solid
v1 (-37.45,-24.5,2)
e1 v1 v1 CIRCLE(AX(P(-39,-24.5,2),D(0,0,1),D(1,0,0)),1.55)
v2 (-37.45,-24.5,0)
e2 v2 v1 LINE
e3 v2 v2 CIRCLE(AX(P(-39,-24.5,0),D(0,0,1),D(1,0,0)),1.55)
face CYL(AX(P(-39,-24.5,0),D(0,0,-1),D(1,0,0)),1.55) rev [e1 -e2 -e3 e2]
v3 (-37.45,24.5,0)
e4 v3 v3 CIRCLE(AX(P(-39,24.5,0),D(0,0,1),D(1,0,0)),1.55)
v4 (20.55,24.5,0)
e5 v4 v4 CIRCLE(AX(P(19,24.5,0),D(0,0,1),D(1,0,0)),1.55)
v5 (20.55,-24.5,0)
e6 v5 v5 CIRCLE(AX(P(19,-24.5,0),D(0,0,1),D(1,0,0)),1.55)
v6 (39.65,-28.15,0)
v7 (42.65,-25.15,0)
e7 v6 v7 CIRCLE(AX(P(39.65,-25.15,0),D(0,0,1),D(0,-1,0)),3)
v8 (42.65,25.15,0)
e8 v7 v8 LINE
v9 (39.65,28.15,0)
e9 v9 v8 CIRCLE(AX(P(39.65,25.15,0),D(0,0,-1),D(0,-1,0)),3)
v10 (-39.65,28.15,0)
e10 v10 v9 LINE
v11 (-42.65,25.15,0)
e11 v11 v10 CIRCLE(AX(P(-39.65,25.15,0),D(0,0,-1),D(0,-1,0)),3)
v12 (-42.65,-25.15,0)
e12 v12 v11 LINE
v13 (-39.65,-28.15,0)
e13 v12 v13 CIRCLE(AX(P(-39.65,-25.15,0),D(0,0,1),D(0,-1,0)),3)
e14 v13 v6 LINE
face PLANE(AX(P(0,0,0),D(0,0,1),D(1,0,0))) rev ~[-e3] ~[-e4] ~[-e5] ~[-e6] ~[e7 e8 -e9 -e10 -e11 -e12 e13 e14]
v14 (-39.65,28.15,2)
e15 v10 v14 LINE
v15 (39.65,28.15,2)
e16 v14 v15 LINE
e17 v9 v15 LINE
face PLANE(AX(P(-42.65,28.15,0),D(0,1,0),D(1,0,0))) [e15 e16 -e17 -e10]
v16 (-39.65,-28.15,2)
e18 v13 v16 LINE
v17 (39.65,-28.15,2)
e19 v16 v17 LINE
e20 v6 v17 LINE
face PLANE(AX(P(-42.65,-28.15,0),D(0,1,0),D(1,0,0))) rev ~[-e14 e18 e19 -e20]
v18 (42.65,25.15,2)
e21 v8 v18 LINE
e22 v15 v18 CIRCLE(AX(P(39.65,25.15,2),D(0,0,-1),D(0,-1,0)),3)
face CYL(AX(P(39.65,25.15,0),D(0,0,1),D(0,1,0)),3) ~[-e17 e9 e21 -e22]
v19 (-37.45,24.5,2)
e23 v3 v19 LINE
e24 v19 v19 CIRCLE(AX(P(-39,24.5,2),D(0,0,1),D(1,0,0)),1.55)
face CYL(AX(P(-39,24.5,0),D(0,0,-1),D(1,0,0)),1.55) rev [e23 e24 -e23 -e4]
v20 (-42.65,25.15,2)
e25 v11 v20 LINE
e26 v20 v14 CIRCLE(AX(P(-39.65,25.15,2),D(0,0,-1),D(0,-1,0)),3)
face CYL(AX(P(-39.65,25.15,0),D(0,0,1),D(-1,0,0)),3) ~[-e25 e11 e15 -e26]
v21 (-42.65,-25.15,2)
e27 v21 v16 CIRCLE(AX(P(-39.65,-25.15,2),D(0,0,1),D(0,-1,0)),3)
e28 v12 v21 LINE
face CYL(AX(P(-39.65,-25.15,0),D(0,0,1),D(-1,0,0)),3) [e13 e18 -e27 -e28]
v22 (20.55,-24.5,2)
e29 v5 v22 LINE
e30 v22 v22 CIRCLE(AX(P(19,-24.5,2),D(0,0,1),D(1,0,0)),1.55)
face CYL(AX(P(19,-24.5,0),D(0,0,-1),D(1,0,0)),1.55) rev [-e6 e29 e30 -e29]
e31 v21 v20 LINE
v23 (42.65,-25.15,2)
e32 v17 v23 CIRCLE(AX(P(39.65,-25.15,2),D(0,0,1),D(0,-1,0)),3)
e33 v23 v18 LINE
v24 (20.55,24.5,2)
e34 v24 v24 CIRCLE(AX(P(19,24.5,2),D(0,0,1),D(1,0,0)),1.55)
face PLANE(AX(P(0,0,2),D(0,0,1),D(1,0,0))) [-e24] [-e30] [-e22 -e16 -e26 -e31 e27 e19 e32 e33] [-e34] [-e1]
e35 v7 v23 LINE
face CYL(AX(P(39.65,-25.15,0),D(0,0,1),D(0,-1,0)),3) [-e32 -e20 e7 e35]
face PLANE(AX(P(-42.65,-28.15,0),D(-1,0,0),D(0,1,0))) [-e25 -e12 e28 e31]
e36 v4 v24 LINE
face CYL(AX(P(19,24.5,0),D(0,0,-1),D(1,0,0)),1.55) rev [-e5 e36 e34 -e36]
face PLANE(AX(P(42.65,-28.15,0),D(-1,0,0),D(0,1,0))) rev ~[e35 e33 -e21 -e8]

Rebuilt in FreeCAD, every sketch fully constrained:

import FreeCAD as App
import Part
import Sketcher

V = App.Vector
Q = App.Units.Quantity


def edges_at(feature, points):
    """Names of the edges that pass closest to the given points."""
    edges = feature.Shape.Edges
    near = lambda p: min(range(len(edges)), key=lambda i: edges[i].distToShape(Part.Vertex(*p))[0])
    return sorted({f"Edge{near(p) + 1}" for p in points})


def add_polygon(sketch, points):
    """Adds a closed chain of lines whose ends are joined by coincident constraints."""
    first, n = sketch.GeometryCount, len(points)
    for a, b in zip(points, points[1:] + points[:1]):
        sketch.addGeometry(Part.LineSegment(App.Vector(*a, 0), App.Vector(*b, 0)), False)
    for i in range(n):
        sketch.addConstraint(Sketcher.Constraint("Coincident", first + i, 2, first + (i + 1) % n, 1))

doc = App.newDocument("Part")
body = doc.addObject("PartDesign::Body", "Body")

# Sketch on XY plane
sketch1 = body.newObject("Sketcher::SketchObject", "Sketch")
sketch1.AttachmentSupport = (doc.getObject("XY_Plane"), [""])
sketch1.MapMode = "FlatFace"
add_polygon(sketch1, [(-42.6, 28.1), (-42.6, -28.1), (42.6, -28.1), (42.6, 28.1)])  # lines 0-3
sketch1.addGeometry(Part.Circle(V(-39, -24.5, 0), V(0, 0, 1), 1.6), False)  # 4
sketch1.addGeometry(Part.Circle(V(19, -24.5, 0), V(0, 0, 1), 1.6), False)  # 5
sketch1.addGeometry(Part.Circle(V(-39, 24.5, 0), V(0, 0, 1), 1.6), False)  # 6
sketch1.addGeometry(Part.Circle(V(19, 24.5, 0), V(0, 0, 1), 1.6), False)  # 7
sketch1.addConstraint([
    Sketcher.Constraint("Vertical", 0),
    Sketcher.Constraint("Horizontal", 1),
    Sketcher.Constraint("Vertical", 2),
    Sketcher.Constraint("Horizontal", 3),
    Sketcher.Constraint("Equal", 4, 5),
    Sketcher.Constraint("Equal", 5, 6),
    Sketcher.Constraint("Equal", 6, 7),
    Sketcher.Constraint("Symmetric", 0, 2, 2, 2, -1, 1),
    Sketcher.Constraint("Symmetric", 4, 3, 6, 3, -1),
    Sketcher.Constraint("Symmetric", 5, 3, 7, 3, -1),
    Sketcher.Constraint("Horizontal", 4, 3, 5, 3),
    Sketcher.Constraint("Diameter", 4, Q("3.1 mm")),
    Sketcher.Constraint("DistanceX", 1, 1, 1, 2, Q("85.3 mm")),
    Sketcher.Constraint("DistanceY", 0, 2, 0, 1, Q("56.3 mm")),
    Sketcher.Constraint("DistanceX", 4, 3, -1, 1, Q("39 mm")),
    Sketcher.Constraint("DistanceX", -1, 1, 5, 3, Q("19 mm")),
    Sketcher.Constraint("DistanceY", 4, 3, 6, 3, Q("49 mm")),
])
pad1 = body.newObject("PartDesign::Pad", "Pad")
pad1.Profile = sketch1
pad1.Length = 2
doc.recompute()

fillet = body.newObject("PartDesign::Fillet", "Fillet")
fillet.Base = (pad1, edges_at(pad1, [
    (-42.65, 28.15, 1),
    (-42.65, -28.15, 1),
    (42.65, 28.15, 1),
    (42.65, -28.15, 1),
]))
fillet.Radius = 3

doc.recompute()
